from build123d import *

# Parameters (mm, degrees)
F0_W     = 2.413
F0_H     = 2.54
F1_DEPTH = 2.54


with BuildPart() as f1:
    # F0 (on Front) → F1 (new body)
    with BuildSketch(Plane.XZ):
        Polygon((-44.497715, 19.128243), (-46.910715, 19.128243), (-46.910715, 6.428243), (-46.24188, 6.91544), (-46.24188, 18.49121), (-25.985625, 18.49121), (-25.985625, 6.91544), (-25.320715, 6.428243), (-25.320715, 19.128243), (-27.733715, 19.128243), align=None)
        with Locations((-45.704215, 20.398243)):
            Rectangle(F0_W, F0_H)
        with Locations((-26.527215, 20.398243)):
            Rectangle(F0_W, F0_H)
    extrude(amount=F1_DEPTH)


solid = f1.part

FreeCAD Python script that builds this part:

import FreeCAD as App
import Part
import Sketcher
from FreeCAD import Vector
Q = App.Units.Quantity


def add_polygon(sketch, points):
    """Adds a closed chain of lines whose ends are joined by coincident constraints."""
    first, n = sketch.GeometryCount, len(points)
    for a, b in zip(points, points[1:] + points[:1]):
        sketch.addGeometry(Part.LineSegment(App.Vector(*a, 0), App.Vector(*b, 0)), False)
    for i in range(n):
        sketch.addConstraint(Sketcher.Constraint("Coincident", first + i, 2, first + (i + 1) % n, 1))

doc = App.newDocument("Part")
body = doc.addObject("PartDesign::Body", "Body")

sketch1 = body.newObject("Sketcher::SketchObject", "Sketch")
sketch1.AttachmentSupport = (doc.getObject("XZ_Plane"), [""])
sketch1.MapMode = "FlatFace"
add_polygon(sketch1, [(-46.9, 6.4), (-46.2, 6.9), (-46.2, 18.5), (-26, 18.5), (-26, 6.9), (-25.3, 6.4), (-25.3, 21.7), (-27.7, 21.7), (-27.7, 19.1), (-44.5, 19.1), (-44.5, 21.7), (-46.9, 21.7)])
sketch1.addConstraint([
    Sketcher.Constraint("Vertical", 1),
    Sketcher.Constraint("Horizontal", 2),
    Sketcher.Constraint("Vertical", 3),
    Sketcher.Constraint("Vertical", 5),
    Sketcher.Constraint("Horizontal", 6),
    Sketcher.Constraint("Vertical", 7),
    Sketcher.Constraint("Horizontal", 8),
    Sketcher.Constraint("Vertical", 9),
    Sketcher.Constraint("Horizontal", 10),
    Sketcher.Constraint("Vertical", 11),
    Sketcher.Constraint("Horizontal", 0, 2, 3, 2),
    Sketcher.Constraint("Horizontal", 6, 2, 9, 2),
    Sketcher.Constraint("Horizontal", 4, 2, 11, 2),
    Sketcher.Constraint("Equal", 6, 10),
    Sketcher.Constraint("DistanceY", 5, 1, 5, 2, Q("0.6 in")),
    Sketcher.Constraint("DistanceY", 7, 2, 7, 1, Q("0.1 in")),
    Sketcher.Constraint("DistanceX", 8, 2, 8, 1, Q("0.66 in")),
    Sketcher.Constraint("DistanceX", 6, 2, 6, 1, Q("0.095 in")),
    Sketcher.Constraint("DistanceY", 1, 1, 1, 2, 11.57577),
    Sketcher.Constraint("DistanceX", 2, 1, 2, 2, 20.256255),
    Sketcher.Constraint("DistanceX", 0, 2, -1, 1, 46.24188),
    Sketcher.Constraint("DistanceY", -1, 1, 0, 2, 6.91544),
    Sketcher.Constraint("DistanceX", 3, 2, 4, 2, 0.66491),
    Sketcher.Constraint("Distance", 0, 0.827467),
])
pad1 = body.newObject("PartDesign::Pad", "Pad")
pad1.Profile = sketch1
pad1.Length = Q("0.1 in")

doc.recompute()
